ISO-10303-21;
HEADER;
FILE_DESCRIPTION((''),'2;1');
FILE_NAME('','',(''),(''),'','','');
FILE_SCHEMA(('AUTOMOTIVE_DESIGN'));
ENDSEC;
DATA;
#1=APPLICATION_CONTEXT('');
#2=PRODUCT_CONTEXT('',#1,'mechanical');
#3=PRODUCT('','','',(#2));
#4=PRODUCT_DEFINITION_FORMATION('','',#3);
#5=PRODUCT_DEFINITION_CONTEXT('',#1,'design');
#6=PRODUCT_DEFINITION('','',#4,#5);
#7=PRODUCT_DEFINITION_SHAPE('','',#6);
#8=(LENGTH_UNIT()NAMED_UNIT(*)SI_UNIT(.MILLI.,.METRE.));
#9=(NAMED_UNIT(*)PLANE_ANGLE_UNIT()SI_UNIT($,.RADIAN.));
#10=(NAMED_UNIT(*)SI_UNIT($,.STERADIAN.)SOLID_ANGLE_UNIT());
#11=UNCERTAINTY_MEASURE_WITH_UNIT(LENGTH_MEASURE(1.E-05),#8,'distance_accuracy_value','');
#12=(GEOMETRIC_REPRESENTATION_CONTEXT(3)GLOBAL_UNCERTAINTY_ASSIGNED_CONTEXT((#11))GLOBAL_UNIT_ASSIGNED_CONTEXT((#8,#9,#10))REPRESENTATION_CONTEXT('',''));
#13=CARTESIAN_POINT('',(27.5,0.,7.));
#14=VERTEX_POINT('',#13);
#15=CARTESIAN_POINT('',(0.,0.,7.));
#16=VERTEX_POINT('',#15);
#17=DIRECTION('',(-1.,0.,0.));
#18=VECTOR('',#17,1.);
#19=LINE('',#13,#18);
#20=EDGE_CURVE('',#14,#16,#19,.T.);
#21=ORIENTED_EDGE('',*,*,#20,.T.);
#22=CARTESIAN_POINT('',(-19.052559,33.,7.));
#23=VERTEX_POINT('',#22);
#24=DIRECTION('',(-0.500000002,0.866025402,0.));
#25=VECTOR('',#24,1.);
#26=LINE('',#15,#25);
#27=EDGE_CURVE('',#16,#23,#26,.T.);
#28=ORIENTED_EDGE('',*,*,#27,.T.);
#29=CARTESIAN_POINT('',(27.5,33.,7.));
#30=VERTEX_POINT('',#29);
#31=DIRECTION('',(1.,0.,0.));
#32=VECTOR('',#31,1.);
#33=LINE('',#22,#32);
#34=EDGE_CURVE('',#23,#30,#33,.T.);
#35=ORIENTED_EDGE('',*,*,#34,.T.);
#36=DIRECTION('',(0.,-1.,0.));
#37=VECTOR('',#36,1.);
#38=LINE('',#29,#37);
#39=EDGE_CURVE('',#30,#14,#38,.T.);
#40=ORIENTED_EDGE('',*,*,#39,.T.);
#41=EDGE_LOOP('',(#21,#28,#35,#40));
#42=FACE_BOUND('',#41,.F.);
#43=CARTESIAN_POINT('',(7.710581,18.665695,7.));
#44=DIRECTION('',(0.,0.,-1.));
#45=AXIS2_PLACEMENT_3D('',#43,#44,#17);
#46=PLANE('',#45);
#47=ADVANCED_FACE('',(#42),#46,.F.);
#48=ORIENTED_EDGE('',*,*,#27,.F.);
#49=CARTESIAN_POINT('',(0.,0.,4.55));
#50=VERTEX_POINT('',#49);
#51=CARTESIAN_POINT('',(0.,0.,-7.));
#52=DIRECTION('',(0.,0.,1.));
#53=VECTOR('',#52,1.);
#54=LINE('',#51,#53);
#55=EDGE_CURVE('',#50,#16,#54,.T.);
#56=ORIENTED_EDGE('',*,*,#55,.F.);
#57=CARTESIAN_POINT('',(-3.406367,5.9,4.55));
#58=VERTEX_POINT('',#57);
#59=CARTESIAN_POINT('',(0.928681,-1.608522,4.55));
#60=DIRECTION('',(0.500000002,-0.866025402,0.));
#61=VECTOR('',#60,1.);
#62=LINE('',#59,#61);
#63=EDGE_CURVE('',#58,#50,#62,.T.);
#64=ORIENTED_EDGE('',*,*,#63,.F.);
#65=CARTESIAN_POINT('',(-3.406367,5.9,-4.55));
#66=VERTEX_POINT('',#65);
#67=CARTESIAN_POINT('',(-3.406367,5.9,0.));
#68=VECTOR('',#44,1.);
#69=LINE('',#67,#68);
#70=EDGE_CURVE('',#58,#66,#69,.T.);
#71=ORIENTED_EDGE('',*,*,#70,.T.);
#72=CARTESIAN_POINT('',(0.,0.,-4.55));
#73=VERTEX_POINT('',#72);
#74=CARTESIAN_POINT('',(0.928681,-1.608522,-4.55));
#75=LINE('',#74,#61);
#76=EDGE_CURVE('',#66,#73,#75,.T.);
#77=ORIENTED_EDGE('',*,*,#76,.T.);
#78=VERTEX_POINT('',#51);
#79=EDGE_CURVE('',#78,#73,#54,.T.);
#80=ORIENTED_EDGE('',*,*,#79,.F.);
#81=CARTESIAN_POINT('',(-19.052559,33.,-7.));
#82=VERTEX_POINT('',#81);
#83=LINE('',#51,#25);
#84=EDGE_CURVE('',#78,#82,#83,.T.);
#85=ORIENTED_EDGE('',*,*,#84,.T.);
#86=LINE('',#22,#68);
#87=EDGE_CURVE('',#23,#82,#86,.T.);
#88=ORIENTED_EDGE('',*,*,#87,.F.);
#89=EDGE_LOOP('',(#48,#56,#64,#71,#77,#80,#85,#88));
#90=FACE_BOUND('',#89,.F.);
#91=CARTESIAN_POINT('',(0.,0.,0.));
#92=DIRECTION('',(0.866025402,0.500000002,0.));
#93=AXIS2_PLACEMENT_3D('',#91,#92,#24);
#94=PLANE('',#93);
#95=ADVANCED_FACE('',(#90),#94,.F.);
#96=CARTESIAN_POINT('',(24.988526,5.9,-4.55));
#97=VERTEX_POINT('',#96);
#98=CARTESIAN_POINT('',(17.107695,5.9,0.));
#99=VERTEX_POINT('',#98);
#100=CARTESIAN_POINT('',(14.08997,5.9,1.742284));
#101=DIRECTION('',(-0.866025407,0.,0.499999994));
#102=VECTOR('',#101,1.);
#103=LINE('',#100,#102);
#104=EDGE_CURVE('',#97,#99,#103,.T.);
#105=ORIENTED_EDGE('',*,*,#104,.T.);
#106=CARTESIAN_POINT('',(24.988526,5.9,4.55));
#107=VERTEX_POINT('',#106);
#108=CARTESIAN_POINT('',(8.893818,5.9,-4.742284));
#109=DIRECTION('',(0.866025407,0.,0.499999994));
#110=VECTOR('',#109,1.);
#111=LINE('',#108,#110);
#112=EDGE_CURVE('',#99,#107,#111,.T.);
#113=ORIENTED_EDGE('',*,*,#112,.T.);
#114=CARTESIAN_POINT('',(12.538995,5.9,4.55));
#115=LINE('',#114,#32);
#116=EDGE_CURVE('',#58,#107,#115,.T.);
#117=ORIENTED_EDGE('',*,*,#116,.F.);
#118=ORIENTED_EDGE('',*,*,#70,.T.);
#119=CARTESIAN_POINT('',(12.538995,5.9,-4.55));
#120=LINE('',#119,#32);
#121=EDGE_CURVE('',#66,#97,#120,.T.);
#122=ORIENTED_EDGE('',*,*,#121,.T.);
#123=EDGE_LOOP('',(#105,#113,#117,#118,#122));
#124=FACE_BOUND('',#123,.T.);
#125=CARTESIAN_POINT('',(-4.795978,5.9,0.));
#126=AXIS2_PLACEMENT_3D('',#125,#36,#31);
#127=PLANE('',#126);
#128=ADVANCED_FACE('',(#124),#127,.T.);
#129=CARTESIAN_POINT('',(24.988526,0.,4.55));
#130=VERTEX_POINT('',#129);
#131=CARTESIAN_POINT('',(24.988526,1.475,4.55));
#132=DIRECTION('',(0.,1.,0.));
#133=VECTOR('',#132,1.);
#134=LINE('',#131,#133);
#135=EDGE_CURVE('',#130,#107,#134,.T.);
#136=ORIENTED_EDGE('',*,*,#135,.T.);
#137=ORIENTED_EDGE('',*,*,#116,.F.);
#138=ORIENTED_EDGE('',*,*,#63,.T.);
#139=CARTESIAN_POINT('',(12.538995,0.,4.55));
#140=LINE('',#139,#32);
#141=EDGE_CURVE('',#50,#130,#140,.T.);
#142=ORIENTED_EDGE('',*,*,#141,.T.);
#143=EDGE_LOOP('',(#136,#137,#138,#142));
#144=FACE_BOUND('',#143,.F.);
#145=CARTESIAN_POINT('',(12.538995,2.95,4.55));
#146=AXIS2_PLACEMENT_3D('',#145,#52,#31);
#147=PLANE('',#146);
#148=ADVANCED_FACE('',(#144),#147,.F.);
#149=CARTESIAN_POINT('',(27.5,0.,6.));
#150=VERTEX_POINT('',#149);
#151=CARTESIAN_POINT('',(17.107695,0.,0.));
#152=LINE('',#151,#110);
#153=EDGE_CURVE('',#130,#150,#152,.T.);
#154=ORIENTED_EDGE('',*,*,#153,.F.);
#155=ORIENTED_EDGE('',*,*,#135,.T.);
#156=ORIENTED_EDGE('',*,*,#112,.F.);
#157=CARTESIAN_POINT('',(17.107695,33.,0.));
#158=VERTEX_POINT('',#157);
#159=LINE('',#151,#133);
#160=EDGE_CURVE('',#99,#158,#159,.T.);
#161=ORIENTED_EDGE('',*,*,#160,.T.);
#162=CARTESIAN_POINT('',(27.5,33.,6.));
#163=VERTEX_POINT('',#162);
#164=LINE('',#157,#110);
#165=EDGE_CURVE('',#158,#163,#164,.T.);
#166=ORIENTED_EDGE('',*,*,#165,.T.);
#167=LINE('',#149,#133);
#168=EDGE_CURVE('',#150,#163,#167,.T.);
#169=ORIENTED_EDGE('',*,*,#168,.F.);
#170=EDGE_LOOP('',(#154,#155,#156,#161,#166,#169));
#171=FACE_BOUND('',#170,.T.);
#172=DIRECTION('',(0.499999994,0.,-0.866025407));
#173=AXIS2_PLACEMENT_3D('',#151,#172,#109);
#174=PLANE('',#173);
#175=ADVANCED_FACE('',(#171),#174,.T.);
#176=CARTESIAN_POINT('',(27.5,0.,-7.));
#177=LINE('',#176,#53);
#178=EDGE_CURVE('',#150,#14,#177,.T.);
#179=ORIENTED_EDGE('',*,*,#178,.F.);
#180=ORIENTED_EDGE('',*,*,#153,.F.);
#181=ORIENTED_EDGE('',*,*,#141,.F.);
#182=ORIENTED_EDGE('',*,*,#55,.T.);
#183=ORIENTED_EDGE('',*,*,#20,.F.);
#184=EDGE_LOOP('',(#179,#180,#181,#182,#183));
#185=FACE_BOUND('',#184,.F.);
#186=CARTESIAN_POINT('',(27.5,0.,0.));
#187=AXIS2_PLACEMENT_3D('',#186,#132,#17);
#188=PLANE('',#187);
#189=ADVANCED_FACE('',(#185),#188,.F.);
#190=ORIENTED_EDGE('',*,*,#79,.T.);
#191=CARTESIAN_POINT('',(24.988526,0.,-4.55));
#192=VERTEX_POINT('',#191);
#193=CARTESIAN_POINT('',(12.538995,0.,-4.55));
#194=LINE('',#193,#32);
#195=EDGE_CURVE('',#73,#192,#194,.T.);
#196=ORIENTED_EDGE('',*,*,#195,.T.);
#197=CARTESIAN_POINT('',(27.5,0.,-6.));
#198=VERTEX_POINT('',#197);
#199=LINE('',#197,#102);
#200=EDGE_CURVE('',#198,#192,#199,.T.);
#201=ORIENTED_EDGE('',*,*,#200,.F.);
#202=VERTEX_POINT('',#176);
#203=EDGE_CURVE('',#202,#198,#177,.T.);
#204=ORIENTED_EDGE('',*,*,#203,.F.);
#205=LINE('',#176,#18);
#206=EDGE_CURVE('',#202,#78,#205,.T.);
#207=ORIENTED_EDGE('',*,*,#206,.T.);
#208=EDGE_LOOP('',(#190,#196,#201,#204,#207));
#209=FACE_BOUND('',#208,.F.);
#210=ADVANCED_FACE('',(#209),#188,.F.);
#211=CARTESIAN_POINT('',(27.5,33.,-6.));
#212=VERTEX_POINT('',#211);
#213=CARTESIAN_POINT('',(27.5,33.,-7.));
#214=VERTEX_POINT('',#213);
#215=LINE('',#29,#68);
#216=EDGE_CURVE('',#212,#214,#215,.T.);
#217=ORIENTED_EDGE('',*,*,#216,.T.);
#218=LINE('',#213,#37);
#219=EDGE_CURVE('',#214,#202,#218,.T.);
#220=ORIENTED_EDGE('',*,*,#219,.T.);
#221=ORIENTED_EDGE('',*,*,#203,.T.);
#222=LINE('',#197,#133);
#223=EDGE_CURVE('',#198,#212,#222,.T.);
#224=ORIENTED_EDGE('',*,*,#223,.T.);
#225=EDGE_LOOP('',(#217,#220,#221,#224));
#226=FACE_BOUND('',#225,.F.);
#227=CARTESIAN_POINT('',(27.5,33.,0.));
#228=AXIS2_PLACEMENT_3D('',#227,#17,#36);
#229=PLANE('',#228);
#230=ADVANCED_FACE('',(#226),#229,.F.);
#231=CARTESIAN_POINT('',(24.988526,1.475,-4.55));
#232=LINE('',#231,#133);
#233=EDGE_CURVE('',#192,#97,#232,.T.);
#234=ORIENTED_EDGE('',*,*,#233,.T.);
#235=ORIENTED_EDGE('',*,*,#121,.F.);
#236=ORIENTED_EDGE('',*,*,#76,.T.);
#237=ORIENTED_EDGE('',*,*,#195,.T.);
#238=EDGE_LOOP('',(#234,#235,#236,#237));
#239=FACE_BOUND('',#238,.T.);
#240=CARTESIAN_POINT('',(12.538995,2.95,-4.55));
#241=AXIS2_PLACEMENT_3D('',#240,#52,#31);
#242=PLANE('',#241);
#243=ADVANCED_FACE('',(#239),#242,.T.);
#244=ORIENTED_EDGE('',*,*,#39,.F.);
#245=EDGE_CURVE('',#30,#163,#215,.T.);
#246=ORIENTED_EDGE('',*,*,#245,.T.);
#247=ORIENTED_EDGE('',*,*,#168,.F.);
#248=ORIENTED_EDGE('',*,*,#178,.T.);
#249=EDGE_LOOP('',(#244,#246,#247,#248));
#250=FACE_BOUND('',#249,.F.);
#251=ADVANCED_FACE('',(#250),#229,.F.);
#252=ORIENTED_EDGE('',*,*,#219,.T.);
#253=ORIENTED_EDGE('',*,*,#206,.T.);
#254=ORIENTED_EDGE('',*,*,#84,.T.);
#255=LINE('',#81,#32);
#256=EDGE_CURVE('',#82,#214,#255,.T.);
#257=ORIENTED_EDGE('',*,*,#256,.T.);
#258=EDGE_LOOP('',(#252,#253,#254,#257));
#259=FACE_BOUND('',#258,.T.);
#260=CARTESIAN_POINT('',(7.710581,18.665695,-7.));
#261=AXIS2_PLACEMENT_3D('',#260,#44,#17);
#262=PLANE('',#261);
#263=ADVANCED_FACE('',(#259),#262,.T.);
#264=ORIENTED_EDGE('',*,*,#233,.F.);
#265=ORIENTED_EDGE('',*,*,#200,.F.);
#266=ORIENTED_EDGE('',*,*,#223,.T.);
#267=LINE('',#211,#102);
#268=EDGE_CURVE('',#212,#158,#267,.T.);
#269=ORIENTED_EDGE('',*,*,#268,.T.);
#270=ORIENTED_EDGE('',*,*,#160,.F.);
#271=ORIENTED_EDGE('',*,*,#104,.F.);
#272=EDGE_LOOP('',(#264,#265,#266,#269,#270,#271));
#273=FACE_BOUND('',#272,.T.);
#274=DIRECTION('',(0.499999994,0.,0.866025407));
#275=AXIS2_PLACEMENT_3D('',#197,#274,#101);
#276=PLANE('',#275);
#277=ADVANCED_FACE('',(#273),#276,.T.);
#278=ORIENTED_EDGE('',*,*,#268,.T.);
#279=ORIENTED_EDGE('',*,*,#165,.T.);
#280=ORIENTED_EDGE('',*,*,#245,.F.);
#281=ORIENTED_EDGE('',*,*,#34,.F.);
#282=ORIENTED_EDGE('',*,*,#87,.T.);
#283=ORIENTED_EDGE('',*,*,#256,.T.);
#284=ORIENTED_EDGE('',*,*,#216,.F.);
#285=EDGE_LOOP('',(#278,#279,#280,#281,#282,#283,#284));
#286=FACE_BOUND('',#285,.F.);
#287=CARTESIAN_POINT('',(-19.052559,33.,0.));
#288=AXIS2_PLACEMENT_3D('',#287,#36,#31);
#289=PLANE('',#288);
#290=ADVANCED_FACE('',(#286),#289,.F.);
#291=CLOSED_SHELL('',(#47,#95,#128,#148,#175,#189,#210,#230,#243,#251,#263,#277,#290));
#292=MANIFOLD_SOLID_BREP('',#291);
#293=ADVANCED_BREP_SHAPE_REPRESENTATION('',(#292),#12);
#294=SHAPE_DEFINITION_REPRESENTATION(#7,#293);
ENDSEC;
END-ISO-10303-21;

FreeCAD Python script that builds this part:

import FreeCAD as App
import Part
import Sketcher

V = App.Vector
Q = App.Units.Quantity


def add_polygon(sketch, points):
    """Adds a closed chain of lines whose ends are joined by coincident constraints."""
    first, n = sketch.GeometryCount, len(points)
    for a, b in zip(points, points[1:] + points[:1]):
        sketch.addGeometry(Part.LineSegment(App.Vector(*a, 0), App.Vector(*b, 0)), False)
    for i in range(n):
        sketch.addConstraint(Sketcher.Constraint("Coincident", first + i, 2, first + (i + 1) % n, 1))

doc = App.newDocument("Part")
params = doc.addObject("Spreadsheet::Sheet", "Params")
for row, (alias, value) in enumerate([
    ("sketch1_height", "12 mm"),
    ("pad1_length", "33 mm"),
    ("sketch2_height", "5.9 mm"),
    ("pad2_length", "9.1 mm"),
    ("sketch3_height", "33 mm"),
    ("sketch3_width", "27.5 mm"),
    ("pad3_length", "14 mm"),
], start=1):
    params.set(f"A{row}", alias)
    params.set(f"B{row}", "=" + value)
    params.setAlias(f"B{row}", alias)

body = doc.addObject("PartDesign::Body", "Body")

# Sketch on XZ plane
sketch1 = body.newObject("Sketcher::SketchObject", "Sketch")
sketch1.AttachmentSupport = (doc.getObject("XZ_Plane"), [""])
sketch1.MapMode = "FlatFace"
add_polygon(sketch1, [(28, -6), (28, 6), (17, 0)])  # lines 0-2
sketch1.addConstraint(Sketcher.Constraint("Vertical", 0))
sketch1.addConstraint(Sketcher.Constraint("PointOnObject", 1, 2, -1))
sketch1.addConstraint(Sketcher.Constraint("Equal", 1, 2))
sketch1.addConstraint(Sketcher.Constraint("DistanceY", 0, 1, 0, 2, Q("12 mm")))
sketch1.addConstraint(Sketcher.Constraint("Angle", 1, Q("-150 deg")))
sketch1.addConstraint(Sketcher.Constraint("DistanceX", -1, 1, 0, 2, Q("27.5 mm")))
sketch1.setExpression("Constraints[6]", "Params.sketch1_height")
pad1 = body.newObject("PartDesign::Pad", "Pad")
pad1.Profile = sketch1
pad1.setExpression("Length", "Params.pad1_length")
pad1.Reversed = True
body2 = doc.addObject("PartDesign::Body", "Body001")

# Sketch on XY plane
sketch2 = body2.newObject("Sketcher::SketchObject", "Sketch001")
sketch2.AttachmentSupport = (doc.getObject("XY_Plane001"), [""])
sketch2.MapMode = "FlatFace"
add_polygon(sketch2, [(-5, 6), (-5, 0), (30, 0), (30, 6)])  # lines 0-3
sketch2.addConstraint(Sketcher.Constraint("Vertical", 0))
sketch2.addConstraint(Sketcher.Constraint("Horizontal", 1))
sketch2.addConstraint(Sketcher.Constraint("Vertical", 2))
sketch2.addConstraint(Sketcher.Constraint("Horizontal", 3))
sketch2.addConstraint(Sketcher.Constraint("PointOnObject", 0, 2, -1))
sketch2.addConstraint(Sketcher.Constraint("DistanceY", 0, 2, 0, 1, Q("5.9 mm")))
sketch2.addConstraint(Sketcher.Constraint("DistanceX", 1, 1, 1, 2, Q("34.669946 mm")))
sketch2.addConstraint(Sketcher.Constraint("DistanceX", -1, 1, 1, 2, Q("29.873968 mm")))
sketch2.setExpression("Constraints[9]", "Params.sketch2_height")
pad2 = body2.newObject("PartDesign::Pad", "Pad001")
pad2.Profile = sketch2
pad2.setExpression("Length", "Params.pad2_length")
pad2.Midplane = True
body3 = doc.addObject("PartDesign::Body", "Body002")

# Sketch on XY plane
sketch3 = body3.newObject("Sketcher::SketchObject", "Sketch002")
sketch3.AttachmentSupport = (doc.getObject("XY_Plane002"), [""])
sketch3.MapMode = "FlatFace"
add_polygon(sketch3, [(-19, 33), (0, 0), (28, 0), (28, 33)])  # lines 0-3
sketch3.addConstraint(Sketcher.Constraint("Horizontal", 1))
sketch3.addConstraint(Sketcher.Constraint("Vertical", 2))
sketch3.addConstraint(Sketcher.Constraint("Horizontal", 3))
sketch3.addConstraint(Sketcher.Constraint("Coincident", 0, 2, -1, 1))
sketch3.addConstraint(Sketcher.Constraint("DistanceY", 2, 1, 2, 2, Q("33 mm")))
sketch3.addConstraint(Sketcher.Constraint("Angle", 0, Q("-60 deg")))
sketch3.addConstraint(Sketcher.Constraint("DistanceX", 1, 1, 1, 2, Q("27.5 mm")))
sketch3.setExpression("Constraints[8]", "Params.sketch3_height")
sketch3.setExpression("Constraints[10]", "Params.sketch3_width")
pad3 = body3.newObject("PartDesign::Pad", "Pad002")
pad3.Profile = sketch3
pad3.setExpression("Length", "Params.pad3_length")
pad3.Midplane = True
doc.recompute()

boolean = body3.newObject("PartDesign::Boolean", "Boolean")
boolean.Type = "Cut"
boolean.addObjects([body2])
doc.recompute()

boolean2 = body3.newObject("PartDesign::Boolean", "Boolean001")
boolean2.Type = "Cut"
boolean2.addObjects([body])

doc.recompute()
